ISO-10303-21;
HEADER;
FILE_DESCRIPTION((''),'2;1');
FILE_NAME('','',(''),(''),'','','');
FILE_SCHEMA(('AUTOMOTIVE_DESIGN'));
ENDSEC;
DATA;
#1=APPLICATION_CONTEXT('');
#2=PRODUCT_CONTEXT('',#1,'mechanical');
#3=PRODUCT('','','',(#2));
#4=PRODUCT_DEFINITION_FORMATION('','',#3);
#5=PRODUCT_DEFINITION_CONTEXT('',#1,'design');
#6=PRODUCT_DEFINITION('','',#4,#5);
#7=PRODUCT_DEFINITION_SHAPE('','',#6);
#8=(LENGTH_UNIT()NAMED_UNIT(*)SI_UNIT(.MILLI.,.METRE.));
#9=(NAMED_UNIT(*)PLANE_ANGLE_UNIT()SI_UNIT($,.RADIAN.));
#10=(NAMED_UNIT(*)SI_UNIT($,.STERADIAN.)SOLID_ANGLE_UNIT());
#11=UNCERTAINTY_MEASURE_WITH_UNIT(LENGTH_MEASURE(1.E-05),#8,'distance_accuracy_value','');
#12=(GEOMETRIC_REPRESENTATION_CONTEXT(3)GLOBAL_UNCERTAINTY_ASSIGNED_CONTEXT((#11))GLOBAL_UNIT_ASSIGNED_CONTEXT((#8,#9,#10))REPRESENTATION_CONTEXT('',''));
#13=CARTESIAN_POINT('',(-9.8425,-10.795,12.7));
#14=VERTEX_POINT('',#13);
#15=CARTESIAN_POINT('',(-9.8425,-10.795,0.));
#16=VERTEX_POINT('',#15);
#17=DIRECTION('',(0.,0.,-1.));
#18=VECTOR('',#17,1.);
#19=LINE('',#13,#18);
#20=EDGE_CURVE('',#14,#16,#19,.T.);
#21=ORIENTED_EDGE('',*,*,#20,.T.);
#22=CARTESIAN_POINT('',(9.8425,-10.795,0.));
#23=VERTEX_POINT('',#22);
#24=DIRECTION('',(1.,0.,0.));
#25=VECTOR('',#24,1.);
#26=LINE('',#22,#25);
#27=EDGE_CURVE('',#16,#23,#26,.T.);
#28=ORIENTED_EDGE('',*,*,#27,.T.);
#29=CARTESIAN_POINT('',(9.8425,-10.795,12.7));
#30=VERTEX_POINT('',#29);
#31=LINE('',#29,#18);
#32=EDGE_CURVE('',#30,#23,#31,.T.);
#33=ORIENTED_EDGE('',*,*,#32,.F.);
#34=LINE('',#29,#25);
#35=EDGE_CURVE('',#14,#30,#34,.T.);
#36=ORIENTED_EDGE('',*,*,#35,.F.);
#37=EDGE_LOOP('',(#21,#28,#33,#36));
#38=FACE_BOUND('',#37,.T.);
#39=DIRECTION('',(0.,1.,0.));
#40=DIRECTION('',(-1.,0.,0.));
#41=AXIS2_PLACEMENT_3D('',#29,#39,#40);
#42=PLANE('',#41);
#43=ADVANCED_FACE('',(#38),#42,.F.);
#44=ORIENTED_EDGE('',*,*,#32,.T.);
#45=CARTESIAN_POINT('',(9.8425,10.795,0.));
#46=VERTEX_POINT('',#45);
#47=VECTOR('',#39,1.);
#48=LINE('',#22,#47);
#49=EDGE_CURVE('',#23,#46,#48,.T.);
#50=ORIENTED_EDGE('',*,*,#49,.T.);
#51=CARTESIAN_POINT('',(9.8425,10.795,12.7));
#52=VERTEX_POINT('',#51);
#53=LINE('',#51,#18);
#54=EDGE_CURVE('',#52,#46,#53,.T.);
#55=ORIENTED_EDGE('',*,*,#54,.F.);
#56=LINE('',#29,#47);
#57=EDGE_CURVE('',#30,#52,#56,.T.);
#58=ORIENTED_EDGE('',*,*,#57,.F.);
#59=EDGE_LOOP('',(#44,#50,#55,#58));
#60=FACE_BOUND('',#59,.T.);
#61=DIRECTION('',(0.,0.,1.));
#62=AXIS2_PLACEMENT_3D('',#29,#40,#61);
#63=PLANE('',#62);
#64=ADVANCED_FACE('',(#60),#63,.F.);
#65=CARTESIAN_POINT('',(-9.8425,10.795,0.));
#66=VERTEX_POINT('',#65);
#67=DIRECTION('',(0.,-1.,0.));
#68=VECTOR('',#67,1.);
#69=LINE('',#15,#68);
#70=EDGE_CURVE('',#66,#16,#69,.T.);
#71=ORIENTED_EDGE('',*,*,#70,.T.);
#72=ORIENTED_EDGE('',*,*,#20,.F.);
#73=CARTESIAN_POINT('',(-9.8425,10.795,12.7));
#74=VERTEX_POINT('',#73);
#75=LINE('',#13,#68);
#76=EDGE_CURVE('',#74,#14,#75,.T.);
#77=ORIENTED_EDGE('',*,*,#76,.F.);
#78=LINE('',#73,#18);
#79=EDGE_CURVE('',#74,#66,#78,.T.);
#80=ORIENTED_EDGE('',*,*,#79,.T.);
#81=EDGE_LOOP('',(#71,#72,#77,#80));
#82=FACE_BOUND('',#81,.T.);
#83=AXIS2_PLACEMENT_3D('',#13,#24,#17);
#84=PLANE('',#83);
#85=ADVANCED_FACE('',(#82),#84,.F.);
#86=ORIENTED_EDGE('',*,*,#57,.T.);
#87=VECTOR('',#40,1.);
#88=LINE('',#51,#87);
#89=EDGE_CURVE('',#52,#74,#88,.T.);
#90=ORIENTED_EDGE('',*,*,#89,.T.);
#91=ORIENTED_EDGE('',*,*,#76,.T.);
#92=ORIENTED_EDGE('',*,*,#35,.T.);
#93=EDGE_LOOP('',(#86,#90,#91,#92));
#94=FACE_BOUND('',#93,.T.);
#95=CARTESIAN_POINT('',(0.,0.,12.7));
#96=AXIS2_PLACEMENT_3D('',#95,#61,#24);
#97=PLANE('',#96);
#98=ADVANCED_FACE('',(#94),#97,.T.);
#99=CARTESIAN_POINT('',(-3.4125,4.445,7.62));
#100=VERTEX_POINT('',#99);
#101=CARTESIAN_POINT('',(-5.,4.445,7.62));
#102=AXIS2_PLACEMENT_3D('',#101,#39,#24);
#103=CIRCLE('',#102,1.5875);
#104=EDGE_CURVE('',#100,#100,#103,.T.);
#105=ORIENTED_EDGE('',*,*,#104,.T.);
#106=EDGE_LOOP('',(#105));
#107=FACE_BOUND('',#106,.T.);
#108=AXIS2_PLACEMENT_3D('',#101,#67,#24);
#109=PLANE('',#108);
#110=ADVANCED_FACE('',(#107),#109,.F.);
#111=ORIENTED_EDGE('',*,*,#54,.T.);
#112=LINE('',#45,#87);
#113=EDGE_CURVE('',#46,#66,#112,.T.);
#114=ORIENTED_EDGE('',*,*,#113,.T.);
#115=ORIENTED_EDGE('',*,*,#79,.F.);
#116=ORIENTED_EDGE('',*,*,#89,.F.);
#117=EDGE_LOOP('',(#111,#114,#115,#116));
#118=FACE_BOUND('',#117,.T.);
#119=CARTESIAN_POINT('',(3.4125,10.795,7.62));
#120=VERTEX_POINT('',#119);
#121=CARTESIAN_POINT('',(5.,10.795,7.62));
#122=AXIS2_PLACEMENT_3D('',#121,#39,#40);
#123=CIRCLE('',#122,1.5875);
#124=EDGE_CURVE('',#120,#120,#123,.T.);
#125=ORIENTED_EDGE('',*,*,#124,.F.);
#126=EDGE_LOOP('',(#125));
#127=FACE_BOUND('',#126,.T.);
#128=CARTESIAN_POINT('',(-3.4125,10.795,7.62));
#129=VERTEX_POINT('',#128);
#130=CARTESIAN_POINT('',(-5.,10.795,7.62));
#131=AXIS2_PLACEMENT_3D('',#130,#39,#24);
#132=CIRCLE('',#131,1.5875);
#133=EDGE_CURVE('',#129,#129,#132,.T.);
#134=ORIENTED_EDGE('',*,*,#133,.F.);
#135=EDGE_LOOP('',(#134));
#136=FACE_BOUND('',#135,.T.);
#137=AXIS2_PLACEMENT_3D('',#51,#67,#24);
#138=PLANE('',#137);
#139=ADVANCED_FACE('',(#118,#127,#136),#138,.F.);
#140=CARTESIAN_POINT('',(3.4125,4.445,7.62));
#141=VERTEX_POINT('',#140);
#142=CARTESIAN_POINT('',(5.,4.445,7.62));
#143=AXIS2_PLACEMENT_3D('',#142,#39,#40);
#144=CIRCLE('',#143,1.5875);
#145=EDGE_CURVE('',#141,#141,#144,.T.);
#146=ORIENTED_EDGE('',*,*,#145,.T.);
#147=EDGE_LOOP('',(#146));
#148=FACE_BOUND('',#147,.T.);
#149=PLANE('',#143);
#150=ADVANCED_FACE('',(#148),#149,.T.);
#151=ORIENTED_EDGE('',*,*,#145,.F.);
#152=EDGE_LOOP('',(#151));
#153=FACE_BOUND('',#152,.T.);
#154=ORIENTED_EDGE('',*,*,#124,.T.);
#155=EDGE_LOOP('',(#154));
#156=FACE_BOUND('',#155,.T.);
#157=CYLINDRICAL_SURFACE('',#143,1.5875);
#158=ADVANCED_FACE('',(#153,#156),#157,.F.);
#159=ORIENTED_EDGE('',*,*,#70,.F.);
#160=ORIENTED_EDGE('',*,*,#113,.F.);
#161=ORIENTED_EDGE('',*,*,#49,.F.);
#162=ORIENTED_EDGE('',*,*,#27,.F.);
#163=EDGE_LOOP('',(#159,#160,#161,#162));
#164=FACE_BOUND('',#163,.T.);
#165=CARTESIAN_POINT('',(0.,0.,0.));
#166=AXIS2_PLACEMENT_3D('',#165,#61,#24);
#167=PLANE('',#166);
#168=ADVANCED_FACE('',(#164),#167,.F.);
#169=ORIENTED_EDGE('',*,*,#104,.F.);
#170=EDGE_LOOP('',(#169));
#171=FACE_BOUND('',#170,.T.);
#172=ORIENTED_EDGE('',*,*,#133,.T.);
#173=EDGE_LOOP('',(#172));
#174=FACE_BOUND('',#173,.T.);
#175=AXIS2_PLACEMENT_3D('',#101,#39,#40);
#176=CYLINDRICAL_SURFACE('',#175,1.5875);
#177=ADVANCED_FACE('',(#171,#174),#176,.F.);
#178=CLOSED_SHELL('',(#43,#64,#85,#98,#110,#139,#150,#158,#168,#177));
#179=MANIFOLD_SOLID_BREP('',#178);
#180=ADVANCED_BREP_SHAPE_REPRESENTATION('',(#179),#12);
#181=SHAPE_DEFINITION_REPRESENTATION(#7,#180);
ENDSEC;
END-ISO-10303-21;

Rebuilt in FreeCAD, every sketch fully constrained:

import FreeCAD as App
import Part
import Sketcher
from FreeCAD import Vector
Q = App.Units.Quantity


def add_polygon(sketch, points):
    """Adds a closed chain of lines whose ends are joined by coincident constraints."""
    first, n = sketch.GeometryCount, len(points)
    for a, b in zip(points, points[1:] + points[:1]):
        sketch.addGeometry(Part.LineSegment(App.Vector(*a, 0), App.Vector(*b, 0)), False)
    for i in range(n):
        sketch.addConstraint(Sketcher.Constraint("Coincident", first + i, 2, first + (i + 1) % n, 1))

doc = App.newDocument("Part")
body = doc.addObject("PartDesign::Body", "Body")

# Sketch on XY plane
sketch1 = doc.addObject("Sketcher::SketchObject", "Sketch")
body.addObject(sketch1)
sketch1.AttachmentSupport = (doc.XY_Plane, [""])
sketch1.MapMode = "FlatFace"
add_polygon(sketch1, [(-10, 11), (-10, -11), (10, -11), (10, 11)])  # lines 0-3
sketch1.addConstraint([
    Sketcher.Constraint("Vertical", 0),
    Sketcher.Constraint("Horizontal", 1),
    Sketcher.Constraint("Vertical", 2),
    Sketcher.Constraint("Horizontal", 3),
    Sketcher.Constraint("Symmetric", 0, 2, 2, 2, -1, 1),
    Sketcher.Constraint("DistanceY", 0, 2, 0, 1, Q("0.85 in")),
    Sketcher.Constraint("DistanceX", 1, 1, 1, 2, Q("0.775 in")),
])
pad1 = doc.addObject("PartDesign::Pad", "Pad")
body.addObject(pad1)
pad1.Profile = sketch1
pad1.Length = Q("0.5 in")

# Sketch on XZ plane
sketch2 = doc.addObject("Sketcher::SketchObject", "Sketch001")
body.addObject(sketch2)
sketch2.AttachmentSupport = (doc.XZ_Plane, [""])
sketch2.MapMode = "FlatFace"
sketch2.AttachmentOffset = App.Placement(Vector(0, 0, -0.425 * 25.4), App.Rotation())
sketch2.addGeometry([
    Part.Circle(Vector(5, 7.6, 0), Vector(0, 0, 1), 1.6),
    Part.Circle(Vector(-5, 7.6, 0), Vector(0, 0, 1), 1.6),
], False)
sketch2.addConstraint([
    Sketcher.Constraint("Equal", 0, 1),
    Sketcher.Constraint("Symmetric", 0, 3, 1, 3, -2),
    Sketcher.Constraint("Diameter", 0, Q("0.125 in")),
    Sketcher.Constraint("DistanceY", -1, 1, 0, 3, Q("0.3 in")),
    Sketcher.Constraint("DistanceX", -1, 1, 0, 3, Q("5 mm")),
])
pocket1 = doc.addObject("PartDesign::Pocket", "Pocket")
body.addObject(pocket1)
pocket1.Profile = sketch2
pocket1.Length = Q("0.25 in")
pocket1.Reversed = True

doc.recompute()
